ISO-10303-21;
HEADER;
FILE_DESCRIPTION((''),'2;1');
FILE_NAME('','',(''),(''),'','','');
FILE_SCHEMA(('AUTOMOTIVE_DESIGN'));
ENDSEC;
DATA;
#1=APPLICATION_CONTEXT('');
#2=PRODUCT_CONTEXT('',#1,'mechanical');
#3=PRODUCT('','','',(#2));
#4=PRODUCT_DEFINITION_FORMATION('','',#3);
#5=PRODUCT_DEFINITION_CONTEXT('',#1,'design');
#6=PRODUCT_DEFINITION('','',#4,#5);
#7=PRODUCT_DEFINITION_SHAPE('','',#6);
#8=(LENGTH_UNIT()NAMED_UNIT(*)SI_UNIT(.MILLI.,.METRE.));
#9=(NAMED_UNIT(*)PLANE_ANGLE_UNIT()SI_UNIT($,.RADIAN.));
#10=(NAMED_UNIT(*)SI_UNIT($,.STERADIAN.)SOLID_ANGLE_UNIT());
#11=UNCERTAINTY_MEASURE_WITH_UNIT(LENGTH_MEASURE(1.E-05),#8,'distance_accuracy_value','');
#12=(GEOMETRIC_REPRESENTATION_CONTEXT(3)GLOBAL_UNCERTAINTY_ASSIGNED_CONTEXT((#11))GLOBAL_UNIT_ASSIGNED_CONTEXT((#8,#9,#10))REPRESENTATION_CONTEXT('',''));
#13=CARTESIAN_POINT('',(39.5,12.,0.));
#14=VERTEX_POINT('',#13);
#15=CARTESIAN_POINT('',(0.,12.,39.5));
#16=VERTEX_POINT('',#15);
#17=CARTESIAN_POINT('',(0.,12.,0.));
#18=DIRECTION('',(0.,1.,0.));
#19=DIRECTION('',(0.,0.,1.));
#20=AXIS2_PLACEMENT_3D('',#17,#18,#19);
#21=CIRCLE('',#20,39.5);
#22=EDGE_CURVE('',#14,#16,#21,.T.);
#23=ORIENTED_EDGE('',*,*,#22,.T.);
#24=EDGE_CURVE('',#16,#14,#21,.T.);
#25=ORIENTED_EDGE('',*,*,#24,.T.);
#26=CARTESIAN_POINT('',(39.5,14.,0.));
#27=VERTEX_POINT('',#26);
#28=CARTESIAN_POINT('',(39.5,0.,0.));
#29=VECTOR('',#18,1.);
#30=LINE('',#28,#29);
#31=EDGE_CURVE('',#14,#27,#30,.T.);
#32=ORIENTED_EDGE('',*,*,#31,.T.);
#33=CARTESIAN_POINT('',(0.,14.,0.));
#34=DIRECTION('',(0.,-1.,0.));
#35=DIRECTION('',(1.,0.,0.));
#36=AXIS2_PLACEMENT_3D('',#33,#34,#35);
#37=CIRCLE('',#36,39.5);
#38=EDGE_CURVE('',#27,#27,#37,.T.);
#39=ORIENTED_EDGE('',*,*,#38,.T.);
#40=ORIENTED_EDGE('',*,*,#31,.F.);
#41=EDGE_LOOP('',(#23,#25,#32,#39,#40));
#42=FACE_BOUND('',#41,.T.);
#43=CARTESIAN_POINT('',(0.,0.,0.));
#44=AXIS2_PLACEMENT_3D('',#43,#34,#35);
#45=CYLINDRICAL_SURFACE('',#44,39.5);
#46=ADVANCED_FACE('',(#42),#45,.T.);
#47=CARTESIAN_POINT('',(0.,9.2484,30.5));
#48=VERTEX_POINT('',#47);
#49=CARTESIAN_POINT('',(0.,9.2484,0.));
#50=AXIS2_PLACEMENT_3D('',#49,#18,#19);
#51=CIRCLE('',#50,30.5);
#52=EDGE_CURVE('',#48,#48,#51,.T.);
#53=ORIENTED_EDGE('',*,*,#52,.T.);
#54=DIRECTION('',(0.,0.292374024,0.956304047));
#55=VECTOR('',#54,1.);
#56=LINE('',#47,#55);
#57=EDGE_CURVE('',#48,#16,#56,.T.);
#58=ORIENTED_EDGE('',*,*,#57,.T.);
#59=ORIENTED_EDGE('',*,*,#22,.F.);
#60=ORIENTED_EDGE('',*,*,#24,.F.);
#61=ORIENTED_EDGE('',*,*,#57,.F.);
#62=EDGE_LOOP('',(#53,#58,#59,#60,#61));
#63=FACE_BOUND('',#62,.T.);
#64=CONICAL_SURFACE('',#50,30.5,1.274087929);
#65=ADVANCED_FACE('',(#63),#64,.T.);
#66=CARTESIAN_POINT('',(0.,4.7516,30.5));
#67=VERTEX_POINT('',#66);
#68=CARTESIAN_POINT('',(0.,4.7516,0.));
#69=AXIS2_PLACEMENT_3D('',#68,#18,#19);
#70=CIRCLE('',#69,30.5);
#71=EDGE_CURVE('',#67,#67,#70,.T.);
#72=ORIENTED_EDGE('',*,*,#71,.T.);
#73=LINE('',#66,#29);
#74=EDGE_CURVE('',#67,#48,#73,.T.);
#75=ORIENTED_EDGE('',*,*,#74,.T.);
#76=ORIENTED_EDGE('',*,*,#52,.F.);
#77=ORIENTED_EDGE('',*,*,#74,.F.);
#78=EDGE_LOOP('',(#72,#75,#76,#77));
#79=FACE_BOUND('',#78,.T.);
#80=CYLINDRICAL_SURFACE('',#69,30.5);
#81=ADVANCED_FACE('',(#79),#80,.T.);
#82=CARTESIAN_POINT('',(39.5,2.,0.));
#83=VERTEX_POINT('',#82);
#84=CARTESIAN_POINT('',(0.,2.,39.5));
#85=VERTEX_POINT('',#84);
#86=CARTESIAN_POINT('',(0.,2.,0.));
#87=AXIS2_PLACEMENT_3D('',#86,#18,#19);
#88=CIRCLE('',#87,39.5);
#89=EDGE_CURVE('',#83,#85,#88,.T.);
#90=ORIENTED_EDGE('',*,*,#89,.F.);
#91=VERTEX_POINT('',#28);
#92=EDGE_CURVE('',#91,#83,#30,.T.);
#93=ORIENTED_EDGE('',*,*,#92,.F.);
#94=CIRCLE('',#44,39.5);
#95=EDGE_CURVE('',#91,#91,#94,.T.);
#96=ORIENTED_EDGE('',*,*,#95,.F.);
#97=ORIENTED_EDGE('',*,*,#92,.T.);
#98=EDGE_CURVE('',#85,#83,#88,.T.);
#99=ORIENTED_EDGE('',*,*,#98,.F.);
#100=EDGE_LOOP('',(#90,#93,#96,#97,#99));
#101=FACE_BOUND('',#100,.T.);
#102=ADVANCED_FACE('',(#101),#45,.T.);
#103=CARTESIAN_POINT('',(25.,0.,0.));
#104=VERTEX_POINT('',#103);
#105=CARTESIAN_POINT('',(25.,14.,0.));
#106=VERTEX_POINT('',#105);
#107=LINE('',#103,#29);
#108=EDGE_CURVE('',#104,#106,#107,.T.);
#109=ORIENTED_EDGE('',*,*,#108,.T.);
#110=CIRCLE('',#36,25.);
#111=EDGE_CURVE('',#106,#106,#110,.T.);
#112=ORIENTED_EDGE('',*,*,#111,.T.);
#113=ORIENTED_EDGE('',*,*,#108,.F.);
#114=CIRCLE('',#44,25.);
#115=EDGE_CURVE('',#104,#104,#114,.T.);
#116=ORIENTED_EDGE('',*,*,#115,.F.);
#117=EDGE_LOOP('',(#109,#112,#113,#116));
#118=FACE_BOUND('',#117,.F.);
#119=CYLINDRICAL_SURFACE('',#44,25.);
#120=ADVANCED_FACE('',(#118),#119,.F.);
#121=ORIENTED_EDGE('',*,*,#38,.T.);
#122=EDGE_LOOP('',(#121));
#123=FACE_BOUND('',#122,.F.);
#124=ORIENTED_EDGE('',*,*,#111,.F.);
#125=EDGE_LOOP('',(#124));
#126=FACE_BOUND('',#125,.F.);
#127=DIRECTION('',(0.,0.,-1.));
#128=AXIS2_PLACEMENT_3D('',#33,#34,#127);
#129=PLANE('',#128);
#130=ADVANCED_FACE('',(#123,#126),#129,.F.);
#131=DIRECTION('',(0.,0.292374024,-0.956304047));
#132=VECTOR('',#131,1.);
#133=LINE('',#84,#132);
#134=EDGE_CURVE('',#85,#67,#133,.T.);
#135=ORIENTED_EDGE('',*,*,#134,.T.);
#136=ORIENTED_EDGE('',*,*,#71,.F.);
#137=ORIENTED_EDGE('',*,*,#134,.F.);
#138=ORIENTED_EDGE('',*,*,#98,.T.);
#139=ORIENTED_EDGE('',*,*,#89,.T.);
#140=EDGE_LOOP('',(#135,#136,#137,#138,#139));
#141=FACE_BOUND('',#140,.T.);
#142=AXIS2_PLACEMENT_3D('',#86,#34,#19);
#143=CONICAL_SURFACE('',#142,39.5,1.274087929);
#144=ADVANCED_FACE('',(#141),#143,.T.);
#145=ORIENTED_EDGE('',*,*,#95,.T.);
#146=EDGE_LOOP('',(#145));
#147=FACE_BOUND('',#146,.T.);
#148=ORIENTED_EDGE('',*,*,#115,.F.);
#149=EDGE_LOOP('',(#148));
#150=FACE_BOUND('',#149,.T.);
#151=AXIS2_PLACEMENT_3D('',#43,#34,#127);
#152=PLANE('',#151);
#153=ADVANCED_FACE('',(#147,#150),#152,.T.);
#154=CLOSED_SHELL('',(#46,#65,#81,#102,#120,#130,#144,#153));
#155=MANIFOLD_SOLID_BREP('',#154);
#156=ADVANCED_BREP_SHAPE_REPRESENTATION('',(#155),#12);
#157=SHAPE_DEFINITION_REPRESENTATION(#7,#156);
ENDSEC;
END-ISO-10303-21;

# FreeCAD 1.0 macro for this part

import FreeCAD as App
import Part
import Sketcher

V = App.Vector
Q = App.Units.Quantity


def add_polygon(sketch, points):
    """Adds a closed chain of lines whose ends are joined by coincident constraints."""
    first, n = sketch.GeometryCount, len(points)
    for a, b in zip(points, points[1:] + points[:1]):
        sketch.addGeometry(Part.LineSegment(App.Vector(*a, 0), App.Vector(*b, 0)), False)
    for i in range(n):
        sketch.addConstraint(Sketcher.Constraint("Coincident", first + i, 2, first + (i + 1) % n, 1))

doc = App.newDocument("Part")
body = doc.addObject("PartDesign::Body", "Body")

sketch1 = body.newObject("Sketcher::SketchObject", "Sketch")
sketch1.AttachmentSupport = (doc.getObject("XZ_Plane"), [""])
sketch1.MapMode = "FlatFace"
sketch1.addGeometry(Part.Circle(V(0, 0, 0), V(0, 0, 1), 40), False)
sketch1.addConstraint([
    Sketcher.Constraint("Coincident", 0, 3, -1, 1),
    Sketcher.Constraint("Diameter", 0, 79.0),
])
pad1 = body.newObject("PartDesign::Pad", "Pad")
pad1.Profile = sketch1
pad1.Length = 14
pad1.Reversed = True

sketch2 = body.newObject("Sketcher::SketchObject", "Sketch001")
sketch2.AttachmentSupport = (doc.getObject("XZ_Plane"), [""])
sketch2.MapMode = "FlatFace"
sketch2.addGeometry(Part.Circle(V(0, 0, 0), V(0, 0, 1), 25), False)
sketch2.addConstraint([
    Sketcher.Constraint("Coincident", 0, 3, -1, 1),
    Sketcher.Constraint("Diameter", 0, 50.0),
])
pocket1 = body.newObject("PartDesign::Pocket", "Pocket")
pocket1.Profile = sketch2
pocket1.Type = "UpToFirst"

sketch3 = body.newObject("Sketcher::SketchObject", "Sketch002")
sketch3.AttachmentSupport = (doc.getObject("YZ_Plane"), [""])
sketch3.MapMode = "FlatFace"
add_polygon(sketch3, [(12, 39.5), (2, 39.5), (4.8, 30.5), (9.2, 30.5)])
sketch3.addConstraint([
    Sketcher.Constraint("Horizontal", 0),
    Sketcher.Constraint("Horizontal", 2),
    Sketcher.Constraint("Equal", 1, 3),
    Sketcher.Constraint("DistanceX", 0, 2, 0, 1, 10.0),
    Sketcher.Constraint("Angle", 1, Q("-72.9999 deg")),
    Sketcher.Constraint("DistanceX", -1, 1, 0, 2, 2.0),
    Sketcher.Constraint("DistanceY", 1, 2, 0, 2, 9.0),
    Sketcher.Constraint("DistanceY", -1, 1, 0, 2, 39.5),
])
groove = body.newObject("PartDesign::Groove", "Groove")
groove.Profile = sketch3
groove.ReferenceAxis = (sketch3, ["H_Axis"])
groove.Angle = 360

doc.recompute()
